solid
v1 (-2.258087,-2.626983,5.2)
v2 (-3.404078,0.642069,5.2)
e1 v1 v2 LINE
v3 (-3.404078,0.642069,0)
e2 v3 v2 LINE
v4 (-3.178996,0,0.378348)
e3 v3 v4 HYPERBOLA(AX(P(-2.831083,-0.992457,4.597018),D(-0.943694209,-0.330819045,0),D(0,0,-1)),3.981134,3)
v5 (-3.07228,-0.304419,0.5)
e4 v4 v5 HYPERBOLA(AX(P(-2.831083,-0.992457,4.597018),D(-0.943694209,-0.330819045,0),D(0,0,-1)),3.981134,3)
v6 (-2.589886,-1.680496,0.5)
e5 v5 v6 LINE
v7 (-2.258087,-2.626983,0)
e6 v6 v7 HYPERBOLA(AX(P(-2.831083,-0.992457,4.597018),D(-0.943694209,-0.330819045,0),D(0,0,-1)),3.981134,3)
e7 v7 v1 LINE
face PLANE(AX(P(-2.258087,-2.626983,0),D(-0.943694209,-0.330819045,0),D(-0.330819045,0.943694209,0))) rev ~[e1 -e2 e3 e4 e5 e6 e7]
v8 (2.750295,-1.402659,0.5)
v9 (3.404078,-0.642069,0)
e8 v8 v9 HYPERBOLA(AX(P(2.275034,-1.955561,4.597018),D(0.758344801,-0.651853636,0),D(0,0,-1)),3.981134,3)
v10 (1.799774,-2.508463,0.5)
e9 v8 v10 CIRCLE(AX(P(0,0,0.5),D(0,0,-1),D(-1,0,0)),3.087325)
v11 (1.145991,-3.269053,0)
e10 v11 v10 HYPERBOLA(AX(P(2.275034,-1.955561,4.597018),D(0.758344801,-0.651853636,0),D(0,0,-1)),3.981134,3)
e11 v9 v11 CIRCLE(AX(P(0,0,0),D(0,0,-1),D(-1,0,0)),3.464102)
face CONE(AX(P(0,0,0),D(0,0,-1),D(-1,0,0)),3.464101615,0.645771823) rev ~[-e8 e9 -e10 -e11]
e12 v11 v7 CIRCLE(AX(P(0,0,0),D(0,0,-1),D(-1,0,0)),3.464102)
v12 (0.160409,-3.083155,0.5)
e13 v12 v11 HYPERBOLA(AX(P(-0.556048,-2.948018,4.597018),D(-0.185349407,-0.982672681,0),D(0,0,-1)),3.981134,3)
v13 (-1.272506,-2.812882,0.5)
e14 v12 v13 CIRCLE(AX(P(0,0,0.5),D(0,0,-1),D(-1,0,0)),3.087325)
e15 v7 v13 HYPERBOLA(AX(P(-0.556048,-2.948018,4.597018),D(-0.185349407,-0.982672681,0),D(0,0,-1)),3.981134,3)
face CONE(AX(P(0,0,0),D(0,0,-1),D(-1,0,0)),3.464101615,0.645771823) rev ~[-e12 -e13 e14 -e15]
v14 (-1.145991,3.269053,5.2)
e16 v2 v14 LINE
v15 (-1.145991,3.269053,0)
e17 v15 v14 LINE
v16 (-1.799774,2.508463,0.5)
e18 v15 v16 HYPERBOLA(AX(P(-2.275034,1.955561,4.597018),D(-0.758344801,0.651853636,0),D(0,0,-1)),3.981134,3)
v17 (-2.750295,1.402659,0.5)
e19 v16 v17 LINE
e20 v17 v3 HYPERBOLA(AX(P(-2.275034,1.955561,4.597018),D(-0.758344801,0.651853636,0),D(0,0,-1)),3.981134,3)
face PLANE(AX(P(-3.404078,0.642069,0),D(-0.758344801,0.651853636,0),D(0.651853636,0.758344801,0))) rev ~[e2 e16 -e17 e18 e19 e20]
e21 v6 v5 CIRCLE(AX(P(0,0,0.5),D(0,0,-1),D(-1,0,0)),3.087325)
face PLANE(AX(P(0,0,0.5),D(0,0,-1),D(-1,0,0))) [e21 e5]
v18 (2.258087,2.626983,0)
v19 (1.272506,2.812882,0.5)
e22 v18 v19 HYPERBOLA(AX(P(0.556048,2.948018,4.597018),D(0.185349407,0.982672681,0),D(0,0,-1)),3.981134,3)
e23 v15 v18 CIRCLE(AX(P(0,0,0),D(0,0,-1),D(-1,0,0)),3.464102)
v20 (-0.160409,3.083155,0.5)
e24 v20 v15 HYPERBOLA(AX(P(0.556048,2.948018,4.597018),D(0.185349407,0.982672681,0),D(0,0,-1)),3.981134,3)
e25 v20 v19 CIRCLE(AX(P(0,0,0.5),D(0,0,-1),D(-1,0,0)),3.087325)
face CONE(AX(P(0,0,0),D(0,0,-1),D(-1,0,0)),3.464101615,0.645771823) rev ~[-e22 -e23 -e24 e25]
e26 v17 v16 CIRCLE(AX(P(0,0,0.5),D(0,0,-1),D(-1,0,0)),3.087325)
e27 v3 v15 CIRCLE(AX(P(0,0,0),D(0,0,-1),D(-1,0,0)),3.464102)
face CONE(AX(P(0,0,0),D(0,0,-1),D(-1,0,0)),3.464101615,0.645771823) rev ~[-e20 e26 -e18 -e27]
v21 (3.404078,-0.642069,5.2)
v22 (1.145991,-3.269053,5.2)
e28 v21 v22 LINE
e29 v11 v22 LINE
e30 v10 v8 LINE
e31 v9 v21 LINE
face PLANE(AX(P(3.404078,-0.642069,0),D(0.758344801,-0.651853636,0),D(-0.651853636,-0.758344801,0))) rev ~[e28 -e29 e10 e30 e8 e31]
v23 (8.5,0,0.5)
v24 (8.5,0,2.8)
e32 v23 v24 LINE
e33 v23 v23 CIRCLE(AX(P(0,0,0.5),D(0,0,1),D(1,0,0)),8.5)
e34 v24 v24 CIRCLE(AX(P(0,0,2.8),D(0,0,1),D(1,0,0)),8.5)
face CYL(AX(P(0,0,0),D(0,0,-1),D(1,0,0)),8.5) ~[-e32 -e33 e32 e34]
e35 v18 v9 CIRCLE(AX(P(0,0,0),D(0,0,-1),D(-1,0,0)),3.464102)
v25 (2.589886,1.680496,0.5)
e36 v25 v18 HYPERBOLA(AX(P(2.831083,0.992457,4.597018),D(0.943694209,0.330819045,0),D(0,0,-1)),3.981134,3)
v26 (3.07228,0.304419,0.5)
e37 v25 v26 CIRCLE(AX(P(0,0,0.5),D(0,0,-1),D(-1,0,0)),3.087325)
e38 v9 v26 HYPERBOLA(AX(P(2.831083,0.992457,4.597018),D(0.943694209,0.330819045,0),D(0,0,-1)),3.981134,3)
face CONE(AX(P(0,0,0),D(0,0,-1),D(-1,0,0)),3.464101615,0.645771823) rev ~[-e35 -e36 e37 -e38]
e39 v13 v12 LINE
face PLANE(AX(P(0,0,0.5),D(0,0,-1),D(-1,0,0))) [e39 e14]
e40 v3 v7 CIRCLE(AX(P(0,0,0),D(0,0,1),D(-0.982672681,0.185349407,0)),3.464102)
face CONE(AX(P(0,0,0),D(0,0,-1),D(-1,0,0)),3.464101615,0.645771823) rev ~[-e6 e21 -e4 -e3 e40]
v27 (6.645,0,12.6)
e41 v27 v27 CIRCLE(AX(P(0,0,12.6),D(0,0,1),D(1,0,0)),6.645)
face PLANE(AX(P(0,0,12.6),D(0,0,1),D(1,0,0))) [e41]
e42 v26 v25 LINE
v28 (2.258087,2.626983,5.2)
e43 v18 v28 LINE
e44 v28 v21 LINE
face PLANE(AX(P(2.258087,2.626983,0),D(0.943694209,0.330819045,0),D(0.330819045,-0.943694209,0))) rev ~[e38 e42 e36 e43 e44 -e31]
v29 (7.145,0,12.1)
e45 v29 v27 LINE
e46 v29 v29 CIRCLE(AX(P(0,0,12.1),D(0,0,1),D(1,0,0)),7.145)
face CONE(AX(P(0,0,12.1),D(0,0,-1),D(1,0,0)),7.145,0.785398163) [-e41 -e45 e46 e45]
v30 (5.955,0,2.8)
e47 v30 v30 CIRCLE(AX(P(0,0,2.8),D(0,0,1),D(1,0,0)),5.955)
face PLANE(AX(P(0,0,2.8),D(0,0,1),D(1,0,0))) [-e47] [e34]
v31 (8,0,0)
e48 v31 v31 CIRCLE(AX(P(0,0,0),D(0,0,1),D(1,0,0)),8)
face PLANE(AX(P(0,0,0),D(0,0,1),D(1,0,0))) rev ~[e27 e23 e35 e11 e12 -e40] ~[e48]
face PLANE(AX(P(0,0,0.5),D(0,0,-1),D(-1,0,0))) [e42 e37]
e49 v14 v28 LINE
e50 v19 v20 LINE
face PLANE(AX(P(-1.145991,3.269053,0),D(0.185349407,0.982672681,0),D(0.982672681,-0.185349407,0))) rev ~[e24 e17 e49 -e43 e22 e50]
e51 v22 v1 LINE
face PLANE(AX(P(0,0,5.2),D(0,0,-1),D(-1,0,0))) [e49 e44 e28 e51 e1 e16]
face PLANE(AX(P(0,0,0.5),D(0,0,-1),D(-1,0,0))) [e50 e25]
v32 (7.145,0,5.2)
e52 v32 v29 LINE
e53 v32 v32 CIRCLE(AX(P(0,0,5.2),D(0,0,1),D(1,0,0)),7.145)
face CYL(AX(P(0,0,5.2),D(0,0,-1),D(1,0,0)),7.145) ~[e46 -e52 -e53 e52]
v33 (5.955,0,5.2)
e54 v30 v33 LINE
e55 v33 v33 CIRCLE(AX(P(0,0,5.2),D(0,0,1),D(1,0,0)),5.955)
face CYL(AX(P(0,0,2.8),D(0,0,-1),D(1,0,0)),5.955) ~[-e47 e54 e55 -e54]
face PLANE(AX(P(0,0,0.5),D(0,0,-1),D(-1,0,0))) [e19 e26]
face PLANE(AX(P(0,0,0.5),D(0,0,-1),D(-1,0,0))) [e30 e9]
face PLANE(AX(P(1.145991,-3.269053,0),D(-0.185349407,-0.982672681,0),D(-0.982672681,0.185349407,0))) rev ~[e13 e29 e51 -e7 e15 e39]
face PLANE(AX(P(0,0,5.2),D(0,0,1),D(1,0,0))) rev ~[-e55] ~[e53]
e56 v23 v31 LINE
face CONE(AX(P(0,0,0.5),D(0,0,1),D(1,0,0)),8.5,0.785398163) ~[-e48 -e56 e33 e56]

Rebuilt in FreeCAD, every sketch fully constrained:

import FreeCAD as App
import Part
import Sketcher
from FreeCAD import Vector
Q = App.Units.Quantity


def edges_at(feature, points):
    """Names of the edges that pass closest to the given points."""
    edges = feature.Shape.Edges
    near = lambda p: min(range(len(edges)), key=lambda i: edges[i].distToShape(Part.Vertex(*p))[0])
    return sorted({f"Edge{near(p) + 1}" for p in points})


def faces_at(feature, points):
    """Names of the faces that lie closest to the given points."""
    faces = feature.Shape.Faces
    near = lambda p: min(range(len(faces)), key=lambda i: faces[i].distToShape(Part.Vertex(*p))[0])
    return sorted({f"Face{near(p) + 1}" for p in points})

doc = App.newDocument("Part")
body = doc.addObject("PartDesign::Body", "Body")

sketch1 = body.newObject("Sketcher::SketchObject", "Sketch")
sketch1.AttachmentSupport = (doc.getObject("XY_Plane"), [""])
sketch1.MapMode = "FlatFace"
sketch1.addGeometry(Part.Circle(Vector(0, 0, 0), Vector(0, 0, 1), 8), False)
sketch1.addConstraint([
    Sketcher.Constraint("Coincident", 0, 3, -1, 1),
    Sketcher.Constraint("Diameter", 0, Q("17 mm")),
])
pad1 = body.newObject("PartDesign::Pad", "Pad")
pad1.Profile = sketch1
pad1.Length = 2.8

sketch2 = body.newObject("Sketcher::SketchObject", "Sketch001")
sketch2.AttachmentSupport = (doc.getObject("XY_Plane"), [""])
sketch2.MapMode = "FlatFace"
sketch2.AttachmentOffset = App.Placement(Vector(0, 0, 2.8), App.Rotation())
sketch2.addGeometry(Part.Circle(Vector(0, 0, 0), Vector(0, 0, 1), 6), False)
sketch2.addConstraint([
    Sketcher.Constraint("Coincident", 0, 3, -1, 1),
    Sketcher.Constraint("Diameter", 0, Q("11.91 mm")),
])
pad2 = body.newObject("PartDesign::Pad", "Pad001")
pad2.Profile = sketch2
pad2.Length = 2.4

sketch3 = body.newObject("Sketcher::SketchObject", "Sketch002")
sketch3.AttachmentSupport = (doc.getObject("XY_Plane"), [""])
sketch3.MapMode = "FlatFace"
sketch3.AttachmentOffset = App.Placement(Vector(0, 0, 5.2), App.Rotation())
sketch3.addGeometry(Part.Circle(Vector(0, 0, 0), Vector(0, 0, 1), 7), False)
sketch3.addConstraint([
    Sketcher.Constraint("Coincident", 0, 3, -1, 1),
    Sketcher.Constraint("Diameter", 0, Q("14.29 mm")),
])
pad3 = body.newObject("PartDesign::Pad", "Pad002")
pad3.Profile = sketch3
pad3.Length = 7.4
doc.recompute()

chamfer = body.newObject("PartDesign::Chamfer", "Chamfer")
chamfer.Base = (pad3, edges_at(pad3, [(-7.145, 0, 12.6)]))
chamfer.Size = 0.5
doc.recompute()

chamfer2 = body.newObject("PartDesign::Chamfer", "Chamfer001")
chamfer2.Base = (chamfer, edges_at(chamfer, [(-8.5, 0, 0)]))
chamfer2.Size = 0.5

sketch4 = body.newObject("Sketcher::SketchObject", "Sketch003")
sketch4.AttachmentSupport = (doc.getObject("XY_Plane"), [""])
sketch4.MapMode = "FlatFace"
sketch4.addGeometry([
    Part.LineSegment(Vector(-2.3, -2.6, 0), Vector(-3.4, 0.6, 0)),
    Part.LineSegment(Vector(-3.4, 0.6, 0), Vector(-1.1, 3.3, 0)),
    Part.LineSegment(Vector(-1.1, 3.3, 0), Vector(2.3, 2.6, 0)),
    Part.LineSegment(Vector(2.3, 2.6, 0), Vector(3.4, -0.6, 0)),
    Part.LineSegment(Vector(3.4, -0.6, 0), Vector(1.1, -3.3, 0)),
    Part.LineSegment(Vector(1.1, -3.3, 0), Vector(-2.3, -2.6, 0)),
], False)
sketch4.addConstraint([
    Sketcher.Constraint("Coincident", 0, 2, 1, 1),
    Sketcher.Constraint("Coincident", 1, 2, 2, 1),
    Sketcher.Constraint("Coincident", 2, 2, 3, 1),
    Sketcher.Constraint("Coincident", 3, 2, 4, 1),
    Sketcher.Constraint("Coincident", 4, 2, 5, 1),
    Sketcher.Constraint("Coincident", 5, 2, 0, 1),
    Sketcher.Constraint("Symmetric", 0, 2, 3, 2, -1, 1),
    Sketcher.Constraint("Symmetric", 1, 2, 4, 2, -1, 1),
    Sketcher.Constraint("Symmetric", 2, 2, 5, 2, -1, 1),
    Sketcher.Constraint("Equal", 0, 1),
    Sketcher.Constraint("Equal", 1, 2),
    Sketcher.Constraint("Distance", 0, Q("3.464102 mm")),
    Sketcher.Constraint("DistanceX", 0, 2, -1, 1, Q("3.404078 mm")),
    Sketcher.Constraint("DistanceY", -1, 1, 0, 2, Q("0.642069 mm")),
    Sketcher.Constraint("DistanceX", 1, 2, -1, 1, Q("1.145991 mm")),
])
pocket1 = body.newObject("PartDesign::Pocket", "Pocket")
pocket1.Profile = sketch4
pocket1.Length = 5.2
pocket1.Reversed = True
body2 = doc.addObject("PartDesign::Body", "Body001")

sketch5 = body2.newObject("Sketcher::SketchObject", "Sketch004")
sketch5.AttachmentSupport = (doc.getObject("XY_Plane001"), [""])
sketch5.MapMode = "FlatFace"
sketch5.addGeometry(Part.Circle(Vector(0, 0, 0), Vector(0, 0, 1), 3.5), False)
sketch5.addConstraint([
    Sketcher.Constraint("Coincident", 0, 3, -1, 1),
    Sketcher.Constraint("Diameter", 0, Q("6.928203 mm")),
])
pad4 = body2.newObject("PartDesign::Pad", "Pad003")
pad4.Profile = sketch5
pad4.Length = 0.5
doc.recompute()

draft = body2.newObject("PartDesign::Draft", "Draft")
draft.Base = (pad4, faces_at(pad4, [(3.464, 0, 0.25)]))
draft.NeutralPlane = (doc.getObject("XY_Plane001"), [""])
draft.Angle = 37
draft.Reversed = False
doc.recompute()

boolean = body.newObject("PartDesign::Boolean", "Boolean")
boolean.Type = "Cut"
boolean.addObjects([body2])

doc.recompute()
